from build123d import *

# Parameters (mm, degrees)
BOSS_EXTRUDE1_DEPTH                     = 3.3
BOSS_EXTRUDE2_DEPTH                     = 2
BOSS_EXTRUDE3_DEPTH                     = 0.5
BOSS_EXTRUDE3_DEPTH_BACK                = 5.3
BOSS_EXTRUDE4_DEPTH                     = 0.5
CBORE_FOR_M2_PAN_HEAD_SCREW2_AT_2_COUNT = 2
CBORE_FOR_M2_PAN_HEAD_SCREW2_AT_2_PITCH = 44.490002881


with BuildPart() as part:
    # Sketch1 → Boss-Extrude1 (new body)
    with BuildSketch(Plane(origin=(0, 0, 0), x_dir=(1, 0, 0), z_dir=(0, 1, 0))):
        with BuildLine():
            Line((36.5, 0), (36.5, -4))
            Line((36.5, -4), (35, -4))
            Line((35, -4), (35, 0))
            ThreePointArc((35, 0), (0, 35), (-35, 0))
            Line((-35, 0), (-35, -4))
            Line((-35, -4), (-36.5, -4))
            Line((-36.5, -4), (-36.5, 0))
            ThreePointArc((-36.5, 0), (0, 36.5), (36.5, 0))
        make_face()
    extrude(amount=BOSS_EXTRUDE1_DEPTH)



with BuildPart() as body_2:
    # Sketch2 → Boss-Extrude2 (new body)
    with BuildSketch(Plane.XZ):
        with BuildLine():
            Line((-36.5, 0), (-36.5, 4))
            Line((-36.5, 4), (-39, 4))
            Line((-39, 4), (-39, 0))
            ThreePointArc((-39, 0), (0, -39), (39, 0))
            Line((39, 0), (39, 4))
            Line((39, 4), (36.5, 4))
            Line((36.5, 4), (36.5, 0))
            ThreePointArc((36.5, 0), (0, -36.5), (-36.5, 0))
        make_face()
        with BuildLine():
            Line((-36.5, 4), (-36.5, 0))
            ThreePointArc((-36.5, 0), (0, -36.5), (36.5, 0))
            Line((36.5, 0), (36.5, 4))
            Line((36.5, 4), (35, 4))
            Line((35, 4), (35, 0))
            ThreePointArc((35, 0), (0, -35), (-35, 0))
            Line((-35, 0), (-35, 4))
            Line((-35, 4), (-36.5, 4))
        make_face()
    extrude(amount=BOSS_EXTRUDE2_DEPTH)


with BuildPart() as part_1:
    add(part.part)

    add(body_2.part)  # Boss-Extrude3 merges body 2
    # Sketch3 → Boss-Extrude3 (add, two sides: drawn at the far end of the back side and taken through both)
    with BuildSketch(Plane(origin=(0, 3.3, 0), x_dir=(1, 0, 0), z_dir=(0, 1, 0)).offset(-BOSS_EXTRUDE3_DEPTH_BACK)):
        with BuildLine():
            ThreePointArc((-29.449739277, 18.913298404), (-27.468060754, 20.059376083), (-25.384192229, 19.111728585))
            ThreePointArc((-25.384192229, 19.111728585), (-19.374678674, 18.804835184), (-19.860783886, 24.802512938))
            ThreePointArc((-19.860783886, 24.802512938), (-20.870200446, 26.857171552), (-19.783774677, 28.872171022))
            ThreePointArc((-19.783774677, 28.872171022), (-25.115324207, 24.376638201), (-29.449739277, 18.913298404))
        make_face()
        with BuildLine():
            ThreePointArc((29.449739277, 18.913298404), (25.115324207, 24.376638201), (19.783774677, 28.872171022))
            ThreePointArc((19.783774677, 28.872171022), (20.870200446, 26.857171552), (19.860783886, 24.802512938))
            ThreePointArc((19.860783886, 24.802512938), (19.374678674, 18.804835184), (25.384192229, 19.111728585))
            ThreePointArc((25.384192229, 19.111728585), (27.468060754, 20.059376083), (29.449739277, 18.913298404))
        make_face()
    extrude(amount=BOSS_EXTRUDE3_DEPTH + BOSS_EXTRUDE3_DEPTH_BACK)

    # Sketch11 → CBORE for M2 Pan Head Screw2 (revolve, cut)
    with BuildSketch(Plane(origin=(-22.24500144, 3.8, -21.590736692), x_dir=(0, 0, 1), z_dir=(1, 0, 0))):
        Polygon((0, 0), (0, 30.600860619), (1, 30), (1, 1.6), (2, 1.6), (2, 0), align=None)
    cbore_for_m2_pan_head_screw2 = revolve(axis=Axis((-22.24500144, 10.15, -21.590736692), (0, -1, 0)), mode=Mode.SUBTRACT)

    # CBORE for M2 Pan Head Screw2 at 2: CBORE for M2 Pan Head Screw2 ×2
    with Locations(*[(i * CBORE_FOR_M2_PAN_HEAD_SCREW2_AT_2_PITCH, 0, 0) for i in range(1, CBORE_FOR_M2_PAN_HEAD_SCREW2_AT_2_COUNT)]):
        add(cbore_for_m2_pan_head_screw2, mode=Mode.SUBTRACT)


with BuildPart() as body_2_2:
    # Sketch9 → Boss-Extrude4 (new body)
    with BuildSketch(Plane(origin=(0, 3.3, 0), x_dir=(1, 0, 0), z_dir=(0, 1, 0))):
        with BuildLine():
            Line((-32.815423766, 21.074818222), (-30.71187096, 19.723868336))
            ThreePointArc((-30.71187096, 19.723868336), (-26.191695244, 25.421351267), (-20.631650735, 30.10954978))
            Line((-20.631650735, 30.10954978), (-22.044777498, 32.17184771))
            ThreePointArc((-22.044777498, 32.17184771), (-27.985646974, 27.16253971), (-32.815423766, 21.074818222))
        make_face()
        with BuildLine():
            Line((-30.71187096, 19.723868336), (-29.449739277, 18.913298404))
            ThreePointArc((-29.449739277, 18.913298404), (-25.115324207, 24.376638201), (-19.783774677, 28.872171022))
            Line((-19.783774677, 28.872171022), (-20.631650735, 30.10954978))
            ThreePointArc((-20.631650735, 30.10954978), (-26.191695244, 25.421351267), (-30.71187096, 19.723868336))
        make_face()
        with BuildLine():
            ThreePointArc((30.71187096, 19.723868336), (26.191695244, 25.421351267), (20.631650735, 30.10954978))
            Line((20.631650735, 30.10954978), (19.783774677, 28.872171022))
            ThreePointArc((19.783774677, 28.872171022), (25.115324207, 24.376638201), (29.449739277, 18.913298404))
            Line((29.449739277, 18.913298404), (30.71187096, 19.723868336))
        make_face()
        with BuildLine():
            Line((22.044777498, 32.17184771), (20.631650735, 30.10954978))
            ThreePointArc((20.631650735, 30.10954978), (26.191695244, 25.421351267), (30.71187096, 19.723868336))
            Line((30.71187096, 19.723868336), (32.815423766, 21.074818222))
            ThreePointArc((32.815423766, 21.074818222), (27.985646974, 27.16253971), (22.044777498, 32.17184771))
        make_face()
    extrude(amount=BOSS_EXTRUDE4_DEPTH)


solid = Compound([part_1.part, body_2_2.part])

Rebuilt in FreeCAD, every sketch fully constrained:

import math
import FreeCAD as App
import Part
import Sketcher
from FreeCAD import Vector
Q = App.Units.Quantity


def add_polygon(sketch, points):
    """Adds a closed chain of lines whose ends are joined by coincident constraints."""
    first, n = sketch.GeometryCount, len(points)
    for a, b in zip(points, points[1:] + points[:1]):
        sketch.addGeometry(Part.LineSegment(App.Vector(*a, 0), App.Vector(*b, 0)), False)
    for i in range(n):
        sketch.addConstraint(Sketcher.Constraint("Coincident", first + i, 2, first + (i + 1) % n, 1))

doc = App.newDocument("Part")
params = doc.addObject("Spreadsheet::Sheet", "Params")
for row, (alias, value) in enumerate([
    ("sketch1_radius", "35 mm"),
    ("sketch1_radius2", "36.5 mm"),
    ("sketch1_height", "4 mm"),
    ("pad1_length", "3.3 mm"),
    ("sketch2_radius", "39 mm"),
    ("sketch2_radius2", "35 mm"),
    ("pad2_length", "2 mm"),
    ("sketch3_radius", "4 mm"),
    ("sketch3_radius2", "35 mm"),
    ("sketch3_radius3", "2.5 mm"),
    ("pad3_length", "0.5 mm"),
    ("pad3_length2", "5.3 mm"),
    ("sketch4_height", "2 mm"),
    ("sketch4_height2", "1 mm"),
    ("sketch4_width", "1.6 mm"),
    ("sketch4_width2", "28.4 mm"),
    ("groove_angle", "360 deg"),
    ("linearpattern_pitch", "44.490003 mm"),
    ("sketch5_radius", "35 mm"),
    ("sketch5_radius2", "39 mm"),
    ("sketch5_length", "2.5 mm"),
    ("pad4_length", "0.5 mm"),
], start=1):
    params.set(f"A{row}", alias)
    params.set(f"B{row}", "=" + value)
    params.setAlias(f"B{row}", alias)

body = doc.addObject("PartDesign::Body", "Body")

# Sketch on XZ plane
sketch1 = body.newObject("Sketcher::SketchObject", "Sketch")
sketch1.AttachmentSupport = (doc.getObject("XZ_Plane"), [""])
sketch1.MapMode = "FlatFace"
sketch1.addGeometry([
    Part.LineSegment(Vector(36.5, 4, 0), Vector(36.5, 0, 0)),  # 0
    Part.ArcOfCircle(Part.Circle(Vector(0, 0, 0), Vector(0, 0, 1), 36.5), math.radians(180), math.radians(360)),  # 1
    Part.LineSegment(Vector(-36.5, 0, 0), Vector(-36.5, 4, 0)),  # 2
    Part.LineSegment(Vector(-36.5, 4, 0), Vector(-35, 4, 0)),  # 3
    Part.LineSegment(Vector(-35, 4, 0), Vector(-35, 0, 0)),  # 4
    Part.ArcOfCircle(Part.Circle(Vector(0, 0, 0), Vector(0, 0, 1), 35), math.radians(180), math.radians(360)),  # 5
    Part.LineSegment(Vector(35, 0, 0), Vector(35, 4, 0)),  # 6
    Part.LineSegment(Vector(35, 4, 0), Vector(36.5, 4, 0)),  # 7
], False)
sketch1.addConstraint([
    Sketcher.Constraint("Tangent", 0, 2, 1, 2),
    Sketcher.Constraint("Tangent", 1, 1, 2, 1),
    Sketcher.Constraint("Coincident", 2, 2, 3, 1),
    Sketcher.Constraint("Coincident", 3, 2, 4, 1),
    Sketcher.Constraint("Tangent", 4, 2, 5, 1),
    Sketcher.Constraint("Tangent", 5, 2, 6, 1),
    Sketcher.Constraint("Coincident", 6, 2, 7, 1),
    Sketcher.Constraint("Coincident", 7, 2, 0, 1),
    Sketcher.Constraint("Vertical", 0),
    Sketcher.Constraint("Vertical", 2),
    Sketcher.Constraint("Horizontal", 3),
    Sketcher.Constraint("Vertical", 4),
    Sketcher.Constraint("Vertical", 6),
    Sketcher.Constraint("Horizontal", 7),
    Sketcher.Constraint("Coincident", 1, 3, -1, 1),
    Sketcher.Constraint("Coincident", 5, 3, -1, 1),
    Sketcher.Constraint("Horizontal", 3, 2, 6, 2),
    Sketcher.Constraint("Radius", 5, Q("35 mm")),
    Sketcher.Constraint("Radius", 1, Q("36.5 mm")),
    Sketcher.Constraint("DistanceY", 0, 2, 0, 1, Q("4 mm")),
])
sketch1.setExpression("Constraints[17]", "Params.sketch1_radius")
sketch1.setExpression("Constraints[18]", "Params.sketch1_radius2")
sketch1.setExpression("Constraints[19]", "Params.sketch1_height")
pad1 = body.newObject("PartDesign::Pad", "Pad")
pad1.Profile = sketch1
pad1.setExpression("Length", "Params.pad1_length")
pad1.Reversed = True
body2 = doc.addObject("PartDesign::Body", "Body001")

# Sketch on XZ plane
sketch2 = body2.newObject("Sketcher::SketchObject", "Sketch001")
sketch2.AttachmentSupport = (doc.getObject("XZ_Plane001"), [""])
sketch2.MapMode = "FlatFace"
sketch2.addGeometry([
    Part.LineSegment(Vector(-39, 4, 0), Vector(-39, 0, 0)),  # 0
    Part.ArcOfCircle(Part.Circle(Vector(0, 0, 0), Vector(0, 0, 1), 39), math.radians(180), math.radians(360)),  # 1
    Part.LineSegment(Vector(39, 0, 0), Vector(39, 4, 0)),  # 2
    Part.LineSegment(Vector(39, 4, 0), Vector(35, 4, 0)),  # 3
    Part.LineSegment(Vector(35, 4, 0), Vector(35, 0, 0)),  # 4
    Part.ArcOfCircle(Part.Circle(Vector(0, 0, 0), Vector(0, 0, 1), 35), math.radians(180), math.radians(360)),  # 5
    Part.LineSegment(Vector(-35, 0, 0), Vector(-35, 4, 0)),  # 6
    Part.LineSegment(Vector(-35, 4, 0), Vector(-39, 4, 0)),  # 7
], False)
sketch2.addConstraint([
    Sketcher.Constraint("Tangent", 0, 2, 1, 1),
    Sketcher.Constraint("Tangent", 1, 2, 2, 1),
    Sketcher.Constraint("Coincident", 2, 2, 3, 1),
    Sketcher.Constraint("Coincident", 3, 2, 4, 1),
    Sketcher.Constraint("Tangent", 4, 2, 5, 2),
    Sketcher.Constraint("Tangent", 5, 1, 6, 1),
    Sketcher.Constraint("Coincident", 6, 2, 7, 1),
    Sketcher.Constraint("Coincident", 7, 2, 0, 1),
    Sketcher.Constraint("Vertical", 0),
    Sketcher.Constraint("Vertical", 2),
    Sketcher.Constraint("Horizontal", 3),
    Sketcher.Constraint("Vertical", 4),
    Sketcher.Constraint("Vertical", 6),
    Sketcher.Constraint("Horizontal", 7),
    Sketcher.Constraint("Coincident", 1, 3, -1, 1),
    Sketcher.Constraint("Coincident", 5, 3, -1, 1),
    Sketcher.Constraint("Horizontal", 3, 2, 6, 2),
    Sketcher.Constraint("Equal", 7, 0),
    Sketcher.Constraint("Radius", 1, Q("39 mm")),
    Sketcher.Constraint("Radius", 5, Q("35 mm")),
])
sketch2.setExpression("Constraints[18]", "Params.sketch2_radius")
sketch2.setExpression("Constraints[19]", "Params.sketch2_radius2")
pad2 = body2.newObject("PartDesign::Pad", "Pad001")
pad2.Profile = sketch2
pad2.setExpression("Length", "Params.pad2_length")
doc.recompute()

boolean = body.newObject("PartDesign::Boolean", "Boolean")
boolean.Type = "Fuse"
boolean.addObjects([body2])

# Sketch on XZ plane
sketch3 = body.newObject("Sketcher::SketchObject", "Sketch002")
sketch3.AttachmentSupport = (doc.getObject("XZ_Plane"), [""])
sketch3.MapMode = "FlatFace"
sketch3.AttachmentOffset = App.Placement(Vector(0, 0, -3.3), App.Rotation())
sketch3.addGeometry([
    Part.ArcOfCircle(Part.Circle(Vector(-27.346186, -17.562349, 0), Vector(0, 0, 1), 2.5), math.radians(-147.290492), math.radians(-38.298028)),  # 0
    Part.ArcOfCircle(Part.Circle(Vector(-22.245001, -21.590737, 0), Vector(0, 0, 1), 4), math.radians(-53.412166), math.radians(141.701972)),  # 1
    Part.ArcOfCircle(Part.Circle(Vector(-18.370648, -26.809873, 0), Vector(0, 0, 1), 2.5), math.radians(126.587834), math.radians(235.580297)),  # 2
    Part.ArcOfCircle(Part.Circle(Vector(0, 0, 0), Vector(0, 0, 1), 35), math.radians(-147.290492), math.radians(-124.419703)),  # 3
    Part.ArcOfCircle(Part.Circle(Vector(0, 0, 0), Vector(0, 0, 1), 35), math.radians(-55.580297), math.radians(-32.709508)),  # 4
    Part.ArcOfCircle(Part.Circle(Vector(18.370648, -26.809873, 0), Vector(0, 0, 1), 2.5), math.radians(-55.580297), math.radians(53.412166)),  # 5
    Part.ArcOfCircle(Part.Circle(Vector(22.245001, -21.590737, 0), Vector(0, 0, 1), 4), math.radians(38.298028), math.radians(233.412166)),  # 6
    Part.ArcOfCircle(Part.Circle(Vector(27.346186, -17.562349, 0), Vector(0, 0, 1), 2.5), math.radians(-141.701972), math.radians(-32.709508)),  # 7
], False)
sketch3.addConstraint([
    Sketcher.Constraint("Tangent", 0, 2, 1, 2),
    Sketcher.Constraint("Tangent", 1, 1, 2, 1),
    Sketcher.Constraint("Tangent", 2, 2, 3, 2),
    Sketcher.Constraint("Tangent", 3, 1, 0, 1),
    Sketcher.Constraint("Tangent", 4, 1, 5, 1),
    Sketcher.Constraint("Tangent", 5, 2, 6, 2),
    Sketcher.Constraint("Tangent", 6, 1, 7, 1),
    Sketcher.Constraint("Tangent", 7, 2, 4, 2),
    Sketcher.Constraint("Coincident", 3, 3, -1, 1),
    Sketcher.Constraint("Coincident", 4, 3, -1, 1),
    Sketcher.Constraint("Equal", 0, 2),
    Sketcher.Constraint("Equal", 3, 4),
    Sketcher.Constraint("Equal", 2, 5),
    Sketcher.Constraint("Equal", 1, 6),
    Sketcher.Constraint("Equal", 5, 7),
    Sketcher.Constraint("Symmetric", 1, 3, 6, 3, -2),
    Sketcher.Constraint("Radius", 1, Q("4 mm")),
    Sketcher.Constraint("Radius", 3, Q("35 mm")),
    Sketcher.Constraint("Radius", 0, Q("2.5 mm")),
    Sketcher.Constraint("DistanceX", 1, 3, -1, 1, Q("22.245001 mm")),
    Sketcher.Constraint("DistanceY", 3, 1, -1, 1, Q("18.913298 mm")),
])
sketch3.setExpression("Constraints[16]", "Params.sketch3_radius")
sketch3.setExpression("Constraints[17]", "Params.sketch3_radius2")
sketch3.setExpression("Constraints[18]", "Params.sketch3_radius3")
pad3 = body.newObject("PartDesign::Pad", "Pad002")
pad3.Profile = sketch3
pad3.Type = "TwoLengths"
pad3.setExpression("Length", "Params.pad3_length")
pad3.setExpression("Length2", "Params.pad3_length2")
pad3.Reversed = True

# Sketch on YZ plane
sketch4 = body.newObject("Sketcher::SketchObject", "Sketch003")
sketch4.AttachmentSupport = (doc.getObject("YZ_Plane"), [""])
sketch4.MapMode = "FlatFace"
sketch4.AttachmentOffset = App.Placement(Vector(0, 0, -22.245001), App.Rotation())
add_polygon(sketch4, [(-26.800861, -21.590737), (3.8, -21.590737), (3.8, -19.590737), (2.2, -19.590737), (2.2, -20.590737), (-26.2, -20.590737)])  # lines 0-5
sketch4.addGeometry(Part.LineSegment(Vector(3.8, -21.590737, 0), Vector(-26.800861, -21.590737, 0)), True)  # axis
sketch4.addConstraint([
    Sketcher.Constraint("Horizontal", 0),
    Sketcher.Constraint("Vertical", 1),
    Sketcher.Constraint("Horizontal", 2),
    Sketcher.Constraint("Vertical", 3),
    Sketcher.Constraint("Horizontal", 4),
    Sketcher.Constraint("Horizontal", 6),
    Sketcher.Constraint("Coincident", 6, 1, 0, 2),
    Sketcher.Constraint("Equal", 0, 6),
    Sketcher.Constraint("DistanceY", 1, 1, 1, 2, Q("2 mm")),
    Sketcher.Constraint("DistanceY", 3, 2, 3, 1, Q("1 mm")),
    Sketcher.Constraint("Angle", 5, Q("-121 deg")),
    Sketcher.Constraint("DistanceX", 2, 2, 2, 1, Q("1.6 mm")),
    Sketcher.Constraint("DistanceX", 4, 2, 4, 1, Q("28.4 mm")),
    Sketcher.Constraint("DistanceX", -1, 1, 0, 2, Q("3.8 mm")),
    Sketcher.Constraint("DistanceY", 0, 2, -1, 1, Q("21.590737 mm")),
])
sketch4.setExpression("Constraints[14]", "Params.sketch4_height")
sketch4.setExpression("Constraints[15]", "Params.sketch4_height2")
sketch4.setExpression("Constraints[17]", "Params.sketch4_width")
sketch4.setExpression("Constraints[18]", "Params.sketch4_width2")
groove = body.newObject("PartDesign::Groove", "Groove")
groove.Profile = sketch4
groove.ReferenceAxis = (sketch4, ["Axis0"])
groove.setExpression("Angle", "Params.groove_angle")
doc.recompute()

linearpattern = body.newObject("PartDesign::LinearPattern", "LinearPattern")
linearpattern.Originals = [groove]
linearpattern.Direction = (doc.getObject("X_Axis"), [""])
linearpattern.Mode = "offset"
linearpattern.setExpression("Offset", "Params.linearpattern_pitch")
linearpattern.Occurrences = 2
body.Tip = linearpattern
body3 = doc.addObject("PartDesign::Body", "Body002")
body3.AllowCompound = True

# Sketch on XZ plane
sketch5 = body3.newObject("Sketcher::SketchObject", "Sketch004")
sketch5.AttachmentSupport = (doc.getObject("XZ_Plane002"), [""])
sketch5.MapMode = "FlatFace"
sketch5.AttachmentOffset = App.Placement(Vector(0, 0, -3.3), App.Rotation())
sketch5.addGeometry([
    Part.LineSegment(Vector(-32.815424, -21.074818, 0), Vector(-30.711871, -19.723868, 0)),  # 0
    Part.LineSegment(Vector(-30.711871, -19.723868, 0), Vector(-29.449739, -18.913298, 0)),  # 1
    Part.ArcOfCircle(Part.Circle(Vector(0, 0, 0), Vector(0, 0, 1), 35), math.radians(-147.290492), math.radians(-124.419703)),  # 2
    Part.LineSegment(Vector(-19.783775, -28.872171, 0), Vector(-20.631651, -30.10955, 0)),  # 3
    Part.LineSegment(Vector(-20.631651, -30.10955, 0), Vector(-22.044777, -32.171848, 0)),  # 4
    Part.ArcOfCircle(Part.Circle(Vector(0, 0, 0), Vector(0, 0, 1), 39), math.radians(-147.290492), math.radians(-124.419703)),  # 5
    Part.LineSegment(Vector(20.631651, -30.10955, 0), Vector(19.783775, -28.872171, 0)),  # 6
    Part.ArcOfCircle(Part.Circle(Vector(0, 0, 0), Vector(0, 0, 1), 35), math.radians(-55.580297), math.radians(-32.709508)),  # 7
    Part.LineSegment(Vector(29.449739, -18.913298, 0), Vector(30.711871, -19.723868, 0)),  # 8
    Part.LineSegment(Vector(30.711871, -19.723868, 0), Vector(32.815424, -21.074818, 0)),  # 9
    Part.ArcOfCircle(Part.Circle(Vector(0, 0, 0), Vector(0, 0, 1), 39), math.radians(-55.580297), math.radians(-32.709508)),  # 10
    Part.LineSegment(Vector(22.044777, -32.171848, 0), Vector(20.631651, -30.10955, 0)),  # 11
], False)
sketch5.addConstraint([
    Sketcher.Constraint("Coincident", 0, 2, 1, 1),
    Sketcher.Constraint("Coincident", 1, 2, 2, 1),
    Sketcher.Constraint("Coincident", 2, 2, 3, 1),
    Sketcher.Constraint("Coincident", 3, 2, 4, 1),
    Sketcher.Constraint("Coincident", 4, 2, 5, 2),
    Sketcher.Constraint("Coincident", 5, 1, 0, 1),
    Sketcher.Constraint("Coincident", 6, 2, 7, 1),
    Sketcher.Constraint("Coincident", 7, 2, 8, 1),
    Sketcher.Constraint("Coincident", 8, 2, 9, 1),
    Sketcher.Constraint("Coincident", 9, 2, 10, 2),
    Sketcher.Constraint("Coincident", 10, 1, 11, 1),
    Sketcher.Constraint("Coincident", 11, 2, 6, 1),
    Sketcher.Constraint("Coincident", 2, 3, -1, 1),
    Sketcher.Constraint("Coincident", 5, 3, -1, 1),
    Sketcher.Constraint("Coincident", 7, 3, -1, 1),
    Sketcher.Constraint("Coincident", 10, 3, -1, 1),
    Sketcher.Constraint("Equal", 2, 7),
    Sketcher.Constraint("Equal", 5, 10),
    Sketcher.Constraint("Symmetric", 0, 2, 8, 2, -2),
    Sketcher.Constraint("Symmetric", 3, 2, 11, 2, -2),
    Sketcher.Constraint("Parallel", 0, 1),
    Sketcher.Constraint("Parallel", 3, 4),
    Sketcher.Constraint("Parallel", 8, 9),
    Sketcher.Constraint("Parallel", 6, 11),
    Sketcher.Constraint("Horizontal", 2, 2, 6, 2),
    Sketcher.Constraint("Horizontal", 1, 2, 7, 2),
    Sketcher.Constraint("Equal", 1, 3),
    Sketcher.Constraint("Radius", 2, Q("35 mm")),
    Sketcher.Constraint("Radius", 5, Q("39 mm")),
    Sketcher.Constraint("Distance", 0, Q("2.5 mm")),
    Sketcher.Constraint("DistanceY", 1, 2, -1, 1, Q("18.913298 mm")),
    Sketcher.Constraint("DistanceX", 0, 2, -1, 1, Q("30.711871 mm")),
    Sketcher.Constraint("DistanceY", 2, 2, -1, 1, Q("28.872171 mm")),
    Sketcher.Constraint("DistanceX", 3, 2, -1, 1, Q("20.631651 mm")),
])
sketch5.setExpression("Constraints[27]", "Params.sketch5_radius")
sketch5.setExpression("Constraints[28]", "Params.sketch5_radius2")
sketch5.setExpression("Constraints[29]", "Params.sketch5_length")
pad4 = body3.newObject("PartDesign::Pad", "Pad003")
pad4.Profile = sketch5
pad4.setExpression("Length", "Params.pad4_length")
pad4.Reversed = True

doc.recompute()
